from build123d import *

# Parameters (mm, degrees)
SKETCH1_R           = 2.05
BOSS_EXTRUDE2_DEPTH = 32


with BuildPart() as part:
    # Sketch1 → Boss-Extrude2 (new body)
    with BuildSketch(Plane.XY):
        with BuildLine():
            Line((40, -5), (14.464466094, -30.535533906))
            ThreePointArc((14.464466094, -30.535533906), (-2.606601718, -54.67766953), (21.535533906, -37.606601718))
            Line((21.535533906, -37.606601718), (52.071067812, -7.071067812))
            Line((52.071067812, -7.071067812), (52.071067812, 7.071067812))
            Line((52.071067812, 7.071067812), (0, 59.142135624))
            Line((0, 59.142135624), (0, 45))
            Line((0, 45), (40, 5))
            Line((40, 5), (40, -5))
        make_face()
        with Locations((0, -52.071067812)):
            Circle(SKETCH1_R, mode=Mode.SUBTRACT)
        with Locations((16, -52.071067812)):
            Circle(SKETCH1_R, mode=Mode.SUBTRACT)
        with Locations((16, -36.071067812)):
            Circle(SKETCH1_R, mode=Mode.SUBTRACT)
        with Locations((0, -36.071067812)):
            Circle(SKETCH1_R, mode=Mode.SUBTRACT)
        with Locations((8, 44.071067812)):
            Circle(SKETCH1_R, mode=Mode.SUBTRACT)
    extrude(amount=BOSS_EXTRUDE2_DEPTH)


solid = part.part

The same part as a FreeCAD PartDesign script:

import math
import FreeCAD as App
import Part
import Sketcher
from FreeCAD import Vector
Q = App.Units.Quantity

doc = App.newDocument("Part")
body = doc.addObject("PartDesign::Body", "Body")

# Sketch on XY plane
sketch1 = doc.addObject("Sketcher::SketchObject", "Sketch")
body.addObject(sketch1)
sketch1.AttachmentSupport = (doc.XY_Plane, [""])
sketch1.MapMode = "FlatFace"
sketch1.addGeometry(Part.LineSegment(Vector(40, -5, 0), Vector(14.464466, -30.535534, 0)), False)
sketch1.addGeometry(Part.ArcOfCircle(Part.Circle(Vector(8, -44.071068, 0), Vector(0, 0, 1), 15), math.radians(64.471221), math.radians(385.528779)), False)
sketch1.addGeometry(Part.LineSegment(Vector(21.535534, -37.606602, 0), Vector(52.071068, -7.071068, 0)), False)
sketch1.addGeometry(Part.LineSegment(Vector(52.071068, -7.071068, 0), Vector(52.071068, 7.071068, 0)), False)
sketch1.addGeometry(Part.LineSegment(Vector(52.071068, 7.071068, 0), Vector(0, 59.142136, 0)), False)
sketch1.addGeometry(Part.LineSegment(Vector(0, 59.142136, 0), Vector(0, 45, 0)), False)
sketch1.addGeometry(Part.LineSegment(Vector(0, 45, 0), Vector(40, 5, 0)), False)
sketch1.addGeometry(Part.LineSegment(Vector(40, 5, 0), Vector(40, -5, 0)), False)
sketch1.addGeometry(Part.Circle(Vector(0, -52.071068, 0), Vector(0, 0, 1), 2.05), False)
sketch1.addGeometry(Part.Circle(Vector(0, -36.071068, 0), Vector(0, 0, 1), 2.05), False)
sketch1.addGeometry(Part.Circle(Vector(16, -52.071068, 0), Vector(0, 0, 1), 2.05), False)
sketch1.addGeometry(Part.Circle(Vector(16, -36.071068, 0), Vector(0, 0, 1), 2.05), False)
sketch1.addGeometry(Part.Circle(Vector(8, 44.071068, 0), Vector(0, 0, 1), 2.05), False)
sketch1.addConstraint(Sketcher.Constraint("Coincident", 0, 2, 1, 1))
sketch1.addConstraint(Sketcher.Constraint("Coincident", 1, 2, 2, 1))
sketch1.addConstraint(Sketcher.Constraint("Coincident", 2, 2, 3, 1))
sketch1.addConstraint(Sketcher.Constraint("Coincident", 3, 2, 4, 1))
sketch1.addConstraint(Sketcher.Constraint("Coincident", 4, 2, 5, 1))
sketch1.addConstraint(Sketcher.Constraint("Coincident", 5, 2, 6, 1))
sketch1.addConstraint(Sketcher.Constraint("Coincident", 6, 2, 7, 1))
sketch1.addConstraint(Sketcher.Constraint("Coincident", 7, 2, 0, 1))
sketch1.addConstraint(Sketcher.Constraint("Vertical", 3))
sketch1.addConstraint(Sketcher.Constraint("Vertical", 5))
sketch1.addConstraint(Sketcher.Constraint("Vertical", 7))
sketch1.addConstraint(Sketcher.Constraint("Equal", 8, 9))
sketch1.addConstraint(Sketcher.Constraint("Equal", 9, 10))
sketch1.addConstraint(Sketcher.Constraint("Equal", 10, 11))
sketch1.addConstraint(Sketcher.Constraint("Equal", 11, 12))
sketch1.addConstraint(Sketcher.Constraint("Symmetric", 1, 3, 12, 3, -1))
sketch1.addConstraint(Sketcher.Constraint("PointOnObject", 8, 3, -2))
sketch1.addConstraint(Sketcher.Constraint("PointOnObject", 9, 3, -2))
sketch1.addConstraint(Sketcher.Constraint("PointOnObject", 4, 2, -2))
sketch1.addConstraint(Sketcher.Constraint("Parallel", 0, 2))
sketch1.addConstraint(Sketcher.Constraint("Perpendicular", 2, 4))
sketch1.addConstraint(Sketcher.Constraint("Parallel", 4, 6))
sketch1.addConstraint(Sketcher.Constraint("Horizontal", 8, 3, 10, 3))
sketch1.addConstraint(Sketcher.Constraint("Horizontal", 9, 3, 11, 3))
sketch1.addConstraint(Sketcher.Constraint("Vertical", 10, 3, 11, 3))
sketch1.addConstraint(Sketcher.Constraint("Equal", 3, 5))
sketch1.addConstraint(Sketcher.Constraint("Radius", 1, 15.0))
sketch1.addConstraint(Sketcher.Constraint("Diameter", 8, 4.1))
sketch1.addConstraint(Sketcher.Constraint("DistanceY", 7, 2, 7, 1, 10.0))
sketch1.addConstraint(Sketcher.Constraint("Angle", 0, Q("-135 deg")))
sketch1.addConstraint(Sketcher.Constraint("DistanceX", -1, 1, 1, 3, 8.0))
sketch1.addConstraint(Sketcher.Constraint("DistanceX", -1, 1, 10, 3, 16.0))
sketch1.addConstraint(Sketcher.Constraint("DistanceY", -1, 1, 5, 2, 45.0))
sketch1.addConstraint(Sketcher.Constraint("DistanceX", -1, 1, 6, 2, 40.0))
sketch1.addConstraint(Sketcher.Constraint("DistanceY", 8, 3, 1, 3, 8.0))
sketch1.addConstraint(Sketcher.Constraint("DistanceY", 1, 3, 9, 3, 8.0))
sketch1.addConstraint(Sketcher.Constraint("DistanceY", 11, 3, 2, 2, 29.0))
sketch1.addConstraint(Sketcher.Constraint("DistanceY", 3, 2, 12, 3, 37.0))
sketch1.addConstraint(Sketcher.Constraint("Distance", 0, 36.112698))
pad1 = doc.addObject("PartDesign::Pad", "Pad")
body.addObject(pad1)
pad1.Profile = sketch1
pad1.Length = 32

doc.recompute()
